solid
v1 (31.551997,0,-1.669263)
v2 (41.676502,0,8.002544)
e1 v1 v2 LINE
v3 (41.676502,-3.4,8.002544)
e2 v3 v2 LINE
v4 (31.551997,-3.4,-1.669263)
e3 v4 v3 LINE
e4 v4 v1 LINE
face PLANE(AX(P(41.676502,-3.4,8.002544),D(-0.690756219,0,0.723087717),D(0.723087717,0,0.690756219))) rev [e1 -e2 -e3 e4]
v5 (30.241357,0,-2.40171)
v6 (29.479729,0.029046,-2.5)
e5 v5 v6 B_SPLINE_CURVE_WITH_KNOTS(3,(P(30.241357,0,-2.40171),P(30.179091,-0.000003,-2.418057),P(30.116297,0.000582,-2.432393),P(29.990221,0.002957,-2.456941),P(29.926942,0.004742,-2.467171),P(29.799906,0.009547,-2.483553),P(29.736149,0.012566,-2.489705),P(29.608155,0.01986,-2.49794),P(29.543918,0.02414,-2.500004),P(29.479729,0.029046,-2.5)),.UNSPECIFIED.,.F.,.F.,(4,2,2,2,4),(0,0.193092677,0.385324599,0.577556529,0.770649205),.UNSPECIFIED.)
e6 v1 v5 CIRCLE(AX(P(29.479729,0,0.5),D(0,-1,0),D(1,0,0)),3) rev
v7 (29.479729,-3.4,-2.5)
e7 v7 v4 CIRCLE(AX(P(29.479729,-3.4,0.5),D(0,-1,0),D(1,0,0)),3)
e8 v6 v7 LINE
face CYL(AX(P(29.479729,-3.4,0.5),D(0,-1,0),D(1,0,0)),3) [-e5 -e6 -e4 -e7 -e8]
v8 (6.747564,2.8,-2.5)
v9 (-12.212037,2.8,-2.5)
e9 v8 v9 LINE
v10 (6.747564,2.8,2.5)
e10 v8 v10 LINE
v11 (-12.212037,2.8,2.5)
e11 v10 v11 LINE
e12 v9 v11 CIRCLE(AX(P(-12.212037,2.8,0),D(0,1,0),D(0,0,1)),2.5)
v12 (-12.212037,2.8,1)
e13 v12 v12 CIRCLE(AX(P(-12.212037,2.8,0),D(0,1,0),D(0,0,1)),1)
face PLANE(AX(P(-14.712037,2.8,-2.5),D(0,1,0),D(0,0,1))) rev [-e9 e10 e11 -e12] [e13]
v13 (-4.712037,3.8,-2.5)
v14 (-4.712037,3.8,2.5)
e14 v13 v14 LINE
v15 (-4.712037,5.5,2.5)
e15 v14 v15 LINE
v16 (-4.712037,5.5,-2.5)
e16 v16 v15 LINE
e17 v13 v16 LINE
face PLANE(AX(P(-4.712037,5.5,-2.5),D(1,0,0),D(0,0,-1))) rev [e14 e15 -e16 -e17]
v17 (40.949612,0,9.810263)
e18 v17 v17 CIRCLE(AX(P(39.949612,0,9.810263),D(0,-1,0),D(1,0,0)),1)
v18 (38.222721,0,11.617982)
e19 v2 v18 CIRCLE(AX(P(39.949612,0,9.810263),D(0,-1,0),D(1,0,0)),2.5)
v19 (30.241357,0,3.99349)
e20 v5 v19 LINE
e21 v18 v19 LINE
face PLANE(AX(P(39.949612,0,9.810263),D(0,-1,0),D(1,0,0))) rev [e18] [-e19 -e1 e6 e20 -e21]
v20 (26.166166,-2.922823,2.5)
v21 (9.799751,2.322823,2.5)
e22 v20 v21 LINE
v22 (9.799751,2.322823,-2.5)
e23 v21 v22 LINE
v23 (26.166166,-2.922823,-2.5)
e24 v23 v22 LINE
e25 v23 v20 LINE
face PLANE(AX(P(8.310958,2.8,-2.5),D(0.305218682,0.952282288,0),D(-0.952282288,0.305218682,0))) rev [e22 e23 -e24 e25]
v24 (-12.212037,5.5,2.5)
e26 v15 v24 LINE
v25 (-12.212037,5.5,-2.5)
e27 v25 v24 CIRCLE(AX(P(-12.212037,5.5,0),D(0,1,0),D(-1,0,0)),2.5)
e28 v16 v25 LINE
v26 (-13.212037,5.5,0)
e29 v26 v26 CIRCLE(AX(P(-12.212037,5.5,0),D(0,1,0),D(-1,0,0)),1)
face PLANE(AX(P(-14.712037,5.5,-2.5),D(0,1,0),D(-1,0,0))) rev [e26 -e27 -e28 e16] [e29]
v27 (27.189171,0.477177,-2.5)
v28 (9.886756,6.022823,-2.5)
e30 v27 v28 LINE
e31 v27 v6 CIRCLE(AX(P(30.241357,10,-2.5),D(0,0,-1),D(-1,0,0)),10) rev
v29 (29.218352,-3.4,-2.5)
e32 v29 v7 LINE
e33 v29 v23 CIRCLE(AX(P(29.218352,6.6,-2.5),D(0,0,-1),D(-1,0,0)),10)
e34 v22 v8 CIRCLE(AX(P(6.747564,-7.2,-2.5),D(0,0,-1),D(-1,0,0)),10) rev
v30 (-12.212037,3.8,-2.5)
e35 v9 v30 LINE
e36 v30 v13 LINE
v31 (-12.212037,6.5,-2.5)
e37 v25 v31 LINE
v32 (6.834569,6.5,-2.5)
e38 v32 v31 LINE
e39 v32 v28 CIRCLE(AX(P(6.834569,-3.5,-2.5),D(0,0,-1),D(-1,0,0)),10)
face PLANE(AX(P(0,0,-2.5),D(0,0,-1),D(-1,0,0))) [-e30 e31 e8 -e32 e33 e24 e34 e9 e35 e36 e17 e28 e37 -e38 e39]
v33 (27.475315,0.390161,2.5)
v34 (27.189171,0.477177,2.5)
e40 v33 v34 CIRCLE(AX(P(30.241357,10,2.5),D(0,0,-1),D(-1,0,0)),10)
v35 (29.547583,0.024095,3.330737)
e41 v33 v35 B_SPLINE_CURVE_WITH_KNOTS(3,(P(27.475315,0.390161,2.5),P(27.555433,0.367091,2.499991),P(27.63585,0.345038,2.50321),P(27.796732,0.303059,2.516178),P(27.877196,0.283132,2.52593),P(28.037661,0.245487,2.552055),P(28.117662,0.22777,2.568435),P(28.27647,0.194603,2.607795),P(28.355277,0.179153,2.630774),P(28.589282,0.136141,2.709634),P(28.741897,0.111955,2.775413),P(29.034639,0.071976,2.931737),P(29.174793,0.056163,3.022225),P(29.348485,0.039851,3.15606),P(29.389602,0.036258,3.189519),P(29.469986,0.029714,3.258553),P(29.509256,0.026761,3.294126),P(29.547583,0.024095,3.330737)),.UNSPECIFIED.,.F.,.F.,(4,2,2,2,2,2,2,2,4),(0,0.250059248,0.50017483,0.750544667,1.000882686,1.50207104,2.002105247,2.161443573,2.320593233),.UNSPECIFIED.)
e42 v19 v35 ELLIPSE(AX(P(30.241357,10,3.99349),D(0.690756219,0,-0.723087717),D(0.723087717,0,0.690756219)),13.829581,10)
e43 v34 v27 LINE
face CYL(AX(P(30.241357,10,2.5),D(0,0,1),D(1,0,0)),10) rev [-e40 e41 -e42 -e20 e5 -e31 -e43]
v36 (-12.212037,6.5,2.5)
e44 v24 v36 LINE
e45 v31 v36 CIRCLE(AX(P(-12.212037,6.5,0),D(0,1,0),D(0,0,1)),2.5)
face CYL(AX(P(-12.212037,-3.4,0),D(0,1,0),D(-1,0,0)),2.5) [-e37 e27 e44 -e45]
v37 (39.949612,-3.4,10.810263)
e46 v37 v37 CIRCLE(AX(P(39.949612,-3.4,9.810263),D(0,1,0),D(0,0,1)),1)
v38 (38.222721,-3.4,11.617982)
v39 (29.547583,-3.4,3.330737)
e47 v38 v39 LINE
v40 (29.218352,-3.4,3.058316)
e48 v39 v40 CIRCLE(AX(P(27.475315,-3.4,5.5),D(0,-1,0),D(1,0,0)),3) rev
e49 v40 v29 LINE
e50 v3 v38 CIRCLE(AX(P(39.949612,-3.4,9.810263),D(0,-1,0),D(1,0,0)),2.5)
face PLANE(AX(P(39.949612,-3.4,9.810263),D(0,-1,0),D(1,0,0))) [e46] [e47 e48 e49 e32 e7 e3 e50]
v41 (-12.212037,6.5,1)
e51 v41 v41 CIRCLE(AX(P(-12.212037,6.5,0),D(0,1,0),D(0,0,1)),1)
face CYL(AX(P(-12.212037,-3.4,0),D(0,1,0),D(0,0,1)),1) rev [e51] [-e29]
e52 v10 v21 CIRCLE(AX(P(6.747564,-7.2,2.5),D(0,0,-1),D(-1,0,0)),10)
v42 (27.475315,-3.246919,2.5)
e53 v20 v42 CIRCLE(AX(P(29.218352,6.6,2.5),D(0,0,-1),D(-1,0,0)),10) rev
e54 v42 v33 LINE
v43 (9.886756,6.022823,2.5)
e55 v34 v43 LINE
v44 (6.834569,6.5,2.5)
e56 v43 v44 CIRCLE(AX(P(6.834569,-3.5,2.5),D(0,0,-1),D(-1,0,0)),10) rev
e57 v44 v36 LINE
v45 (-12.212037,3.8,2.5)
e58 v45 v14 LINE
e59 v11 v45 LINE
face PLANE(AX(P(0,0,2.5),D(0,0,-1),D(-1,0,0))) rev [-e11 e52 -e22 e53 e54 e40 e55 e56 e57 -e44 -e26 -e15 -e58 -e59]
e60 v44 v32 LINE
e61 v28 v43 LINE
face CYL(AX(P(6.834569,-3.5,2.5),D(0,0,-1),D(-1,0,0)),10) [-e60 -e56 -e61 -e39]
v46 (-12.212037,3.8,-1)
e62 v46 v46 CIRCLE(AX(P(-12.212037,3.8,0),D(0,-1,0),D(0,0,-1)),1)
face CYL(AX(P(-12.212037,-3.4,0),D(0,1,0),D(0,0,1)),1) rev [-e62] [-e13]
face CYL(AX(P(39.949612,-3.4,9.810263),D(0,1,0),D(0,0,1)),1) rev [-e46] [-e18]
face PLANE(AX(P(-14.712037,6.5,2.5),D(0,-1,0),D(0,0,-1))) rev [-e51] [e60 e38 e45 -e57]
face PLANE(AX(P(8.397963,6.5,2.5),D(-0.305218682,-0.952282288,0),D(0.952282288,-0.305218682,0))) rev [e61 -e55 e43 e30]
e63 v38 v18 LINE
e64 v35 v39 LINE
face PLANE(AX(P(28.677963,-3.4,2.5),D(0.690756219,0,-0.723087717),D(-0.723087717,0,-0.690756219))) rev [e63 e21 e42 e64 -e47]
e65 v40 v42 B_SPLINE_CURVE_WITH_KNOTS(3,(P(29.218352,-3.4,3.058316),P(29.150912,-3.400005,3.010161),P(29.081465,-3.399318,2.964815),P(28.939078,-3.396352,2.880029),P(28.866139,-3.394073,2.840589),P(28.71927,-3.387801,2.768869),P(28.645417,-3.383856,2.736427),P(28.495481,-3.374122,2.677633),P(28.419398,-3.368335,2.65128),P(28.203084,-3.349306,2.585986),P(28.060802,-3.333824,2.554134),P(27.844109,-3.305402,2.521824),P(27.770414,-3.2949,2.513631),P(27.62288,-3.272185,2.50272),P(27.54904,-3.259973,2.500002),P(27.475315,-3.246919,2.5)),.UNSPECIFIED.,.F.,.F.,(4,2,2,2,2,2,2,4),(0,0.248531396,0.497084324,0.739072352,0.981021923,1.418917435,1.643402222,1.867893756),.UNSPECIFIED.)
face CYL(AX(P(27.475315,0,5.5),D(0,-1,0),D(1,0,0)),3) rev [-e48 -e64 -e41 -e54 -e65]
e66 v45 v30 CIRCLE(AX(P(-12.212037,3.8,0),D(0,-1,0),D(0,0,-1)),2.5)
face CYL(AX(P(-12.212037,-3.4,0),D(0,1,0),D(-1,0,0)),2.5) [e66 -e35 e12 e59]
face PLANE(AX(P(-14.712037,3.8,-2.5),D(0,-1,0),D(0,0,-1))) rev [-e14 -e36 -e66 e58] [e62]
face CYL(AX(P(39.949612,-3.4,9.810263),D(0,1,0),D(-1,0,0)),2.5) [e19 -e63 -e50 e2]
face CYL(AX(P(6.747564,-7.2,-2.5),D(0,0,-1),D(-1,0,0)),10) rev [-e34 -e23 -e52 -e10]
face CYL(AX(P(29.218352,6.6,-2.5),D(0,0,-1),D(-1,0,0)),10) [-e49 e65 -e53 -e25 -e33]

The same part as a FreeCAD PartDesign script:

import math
import FreeCAD as App
import Part
import Sketcher
Q = App.Units.Quantity


def edges_at(feature, points):
    """Names of the edges that pass closest to the given points."""
    edges = feature.Shape.Edges
    near = lambda p: min(range(len(edges)), key=lambda i: edges[i].distToShape(Part.Vertex(*p))[0])
    return sorted({f"Edge{near(p) + 1}" for p in points})


def add_polygon(sketch, points):
    """Adds a closed chain of lines whose ends are joined by coincident constraints."""
    first, n = sketch.GeometryCount, len(points)
    for a, b in zip(points, points[1:] + points[:1]):
        sketch.addGeometry(Part.LineSegment(App.Vector(*a, 0), App.Vector(*b, 0)), False)
    for i in range(n):
        sketch.addConstraint(Sketcher.Constraint("Coincident", first + i, 2, first + (i + 1) % n, 1))

doc = App.newDocument("Part")
body = doc.addObject("PartDesign::Body", "Body")

# Sketch on XY plane
sketch1 = body.newObject("Sketcher::SketchObject", "Sketch")
sketch1.AttachmentSupport = (doc.getObject("XY_Plane"), [""])
sketch1.MapMode = "FlatFace"
add_polygon(sketch1, [(8.397963, 6.5), (-14.712037, 6.5), (-14.712037, 0), (28.677963, 0)])  # lines 0-3
sketch1.addConstraint([
    Sketcher.Constraint("Horizontal", 0),
    Sketcher.Constraint("Vertical", 1),
    Sketcher.Constraint("Horizontal", 2),
    Sketcher.Constraint("PointOnObject", 1, 2, -1),
    Sketcher.Constraint("DistanceY", 1, 2, 1, 1, Q("6.5 mm")),
    Sketcher.Constraint("DistanceX", 0, 2, 0, 1, Q("23.11 mm")),
    Sketcher.Constraint("DistanceX", 2, 1, 2, 2, Q("43.39 mm")),
    Sketcher.Constraint("DistanceX", 0, 2, -1, 1, Q("14.712037 mm")),
])
pad1 = body.newObject("PartDesign::Pad", "Pad")
pad1.Profile = sketch1
pad1.Length = 5
pad1.Midplane = True

# Sketch on XZ plane
sketch2 = body.newObject("Sketcher::SketchObject", "Sketch001")
sketch2.AttachmentSupport = (doc.getObject("XZ_Plane"), [""])
sketch2.MapMode = "FlatFace"
sketch2.addGeometry([
    Part.LineSegment(App.Vector(-12.212037, -2.5, 0), App.Vector(30.682377, -2.5, 0)),  # 0
    Part.LineSegment(App.Vector(30.682377, -2.5, 0), App.Vector(41.676502, 8.002544, 0)),  # 1
    Part.ArcOfCircle(Part.Circle(App.Vector(39.949612, 9.810263, 0), App.Vector(0, 0, 1), 2.5), math.radians(-46.31), math.radians(133.69)),  # 2
    Part.LineSegment(App.Vector(38.222721, 11.617982, 0), App.Vector(28.677963, 2.5, 0)),  # 3
    Part.LineSegment(App.Vector(28.677963, 2.5, 0), App.Vector(-12.212037, 2.5, 0)),  # 4
    Part.ArcOfCircle(Part.Circle(App.Vector(-12.212037, 0, 0), App.Vector(0, 0, 1), 2.5), math.radians(90), math.radians(270)),  # 5
], False)
sketch2.addConstraint([
    Sketcher.Constraint("Coincident", 0, 2, 1, 1),
    Sketcher.Constraint("Tangent", 1, 2, 2, 1),
    Sketcher.Constraint("Tangent", 2, 2, 3, 1),
    Sketcher.Constraint("Coincident", 3, 2, 4, 1),
    Sketcher.Constraint("Tangent", 4, 2, 5, 1),
    Sketcher.Constraint("Tangent", 5, 2, 0, 1),
    Sketcher.Constraint("Horizontal", 0),
    Sketcher.Constraint("Horizontal", 4),
    Sketcher.Constraint("Equal", 2, 5),
    Sketcher.Constraint("PointOnObject", 5, 3, -1),
    Sketcher.Constraint("Parallel", 1, 3),
    Sketcher.Constraint("Radius", 2, Q("2.5 mm")),
    Sketcher.Constraint("Distance", 3, Q("13.2 mm")),
    Sketcher.Constraint("DistanceX", 4, 2, 4, 1, Q("40.89 mm")),
    Sketcher.Constraint("Angle", 1, Q("43.69 deg")),
    Sketcher.Constraint("DistanceX", -1, 1, 2, 3, Q("39.949612 mm")),
])
pad2 = body.newObject("PartDesign::Pad", "Pad001")
pad2.Profile = sketch2
pad2.Length = 3.4

# Sketch on XZ plane
sketch3 = body.newObject("Sketcher::SketchObject", "Sketch002")
sketch3.AttachmentSupport = (doc.getObject("XZ_Plane"), [""])
sketch3.MapMode = "FlatFace"
sketch3.AttachmentOffset = App.Placement(App.Vector(0, 0, -6.5), App.Rotation())
sketch3.addGeometry([
    Part.ArcOfCircle(Part.Circle(App.Vector(-12.212037, 0, 0), App.Vector(0, 0, 1), 2.5), math.radians(180), math.radians(270)),  # 0
    Part.LineSegment(App.Vector(-12.212037, -2.5, 0), App.Vector(-14.712037, -2.5, 0)),  # 1
    Part.LineSegment(App.Vector(-14.712037, -2.5, 0), App.Vector(-14.712037, 0, 0)),  # 2
    Part.ArcOfCircle(Part.Circle(App.Vector(-12.212037, 0, 0), App.Vector(0, 0, 1), 2.5), math.radians(90), math.radians(180)),  # 3
    Part.LineSegment(App.Vector(-14.712037, 0, 0), App.Vector(-14.712037, 2.5, 0)),  # 4
    Part.LineSegment(App.Vector(-14.712037, 2.5, 0), App.Vector(-12.212037, 2.5, 0)),  # 5
], False)
sketch3.addConstraint([
    Sketcher.Constraint("Tangent", 0, 2, 1, 1),
    Sketcher.Constraint("Coincident", 1, 2, 2, 1),
    Sketcher.Constraint("Tangent", 2, 2, 0, 1),
    Sketcher.Constraint("Tangent", 3, 2, 4, 1),
    Sketcher.Constraint("Coincident", 4, 2, 5, 1),
    Sketcher.Constraint("Tangent", 5, 2, 3, 1),
    Sketcher.Constraint("Horizontal", 1),
    Sketcher.Constraint("Vertical", 2),
    Sketcher.Constraint("Vertical", 4),
    Sketcher.Constraint("Horizontal", 5),
    Sketcher.Constraint("Coincident", 3, 3, 0, 3),
    Sketcher.Constraint("Equal", 0, 3),
    Sketcher.Constraint("PointOnObject", 0, 3, -1),
    Sketcher.Constraint("Radius", 0, Q("2.5 mm")),
    Sketcher.Constraint("DistanceX", 0, 3, -1, 1, Q("12.212037 mm")),
])
pocket1 = body.newObject("PartDesign::Pocket", "Pocket")
pocket1.Profile = sketch3
pocket1.Type = "ThroughAll"
pocket1.Midplane = True

# Sketch on XY plane
sketch4 = body.newObject("Sketcher::SketchObject", "Sketch003")
sketch4.AttachmentSupport = (doc.getObject("XY_Plane"), [""])
sketch4.MapMode = "FlatFace"
sketch4.AttachmentOffset = App.Placement(App.Vector(0, 0, 2.5), App.Rotation())
add_polygon(sketch4, [(8.310958, 2.8), (-14.712037, 2.8), (-14.712037, -3.4), (27.654958, -3.4)])  # lines 0-3
sketch4.addConstraint([
    Sketcher.Constraint("Horizontal", 0),
    Sketcher.Constraint("Vertical", 1),
    Sketcher.Constraint("Horizontal", 2),
    Sketcher.Constraint("DistanceY", 1, 2, 1, 1, Q("6.2 mm")),
    Sketcher.Constraint("DistanceY", -1, 1, 0, 2, Q("2.8 mm")),
    Sketcher.Constraint("DistanceX", 3, 2, 2, 2, Q("19.344 mm")),
    Sketcher.Constraint("DistanceX", 0, 2, 0, 1, Q("23.022995 mm")),
    Sketcher.Constraint("DistanceX", -1, 1, 2, 2, Q("27.654958 mm")),
])
pocket2 = body.newObject("PartDesign::Pocket", "Pocket001")
pocket2.Profile = sketch4
pocket2.Type = "ThroughAll"
pocket2.Midplane = True

# Sketch on XY plane
sketch5 = body.newObject("Sketcher::SketchObject", "Sketch004")
sketch5.AttachmentSupport = (doc.getObject("XY_Plane"), [""])
sketch5.MapMode = "FlatFace"
sketch5.AttachmentOffset = App.Placement(App.Vector(0, 0, 2.5), App.Rotation())
add_polygon(sketch5, [(-14.712037, 5.5), (-14.712037, 3.8), (-4.712037, 3.8), (-4.712037, 5.5)])  # lines 0-3
sketch5.addConstraint([
    Sketcher.Constraint("Vertical", 0),
    Sketcher.Constraint("Horizontal", 1),
    Sketcher.Constraint("Vertical", 2),
    Sketcher.Constraint("Horizontal", 3),
    Sketcher.Constraint("DistanceX", 1, 1, 1, 2, Q("10 mm")),
    Sketcher.Constraint("DistanceY", 0, 2, 0, 1, Q("1.7 mm")),
    Sketcher.Constraint("DistanceY", -1, 1, 0, 2, Q("3.8 mm")),
    Sketcher.Constraint("DistanceX", 0, 2, -1, 1, Q("14.712037 mm")),
])
pocket3 = body.newObject("PartDesign::Pocket", "Pocket002")
pocket3.Profile = sketch5
pocket3.Type = "ThroughAll"
pocket3.Midplane = True

# Sketch on XZ plane
sketch6 = body.newObject("Sketcher::SketchObject", "Sketch005")
sketch6.AttachmentSupport = (doc.getObject("XZ_Plane"), [""])
sketch6.MapMode = "FlatFace"
sketch6.AttachmentOffset = App.Placement(App.Vector(0, 0, -6.5), App.Rotation())
sketch6.addGeometry([
    Part.Circle(App.Vector(-12.212037, 0, 0), App.Vector(0, 0, 1), 1),
    Part.Circle(App.Vector(39.949612, 9.810263, 0), App.Vector(0, 0, 1), 1),
], False)
sketch6.addConstraint([
    Sketcher.Constraint("Equal", 0, 1),
    Sketcher.Constraint("PointOnObject", 0, 3, -1),
    Sketcher.Constraint("Diameter", 0, Q("2 mm")),
    Sketcher.Constraint("DistanceX", -1, 1, 1, 3, Q("39.949612 mm")),
    Sketcher.Constraint("DistanceX", 0, 3, 1, 3, Q("52.161648 mm")),
    Sketcher.Constraint("DistanceY", -1, 1, 1, 3, Q("9.810263 mm")),
])
pocket4 = body.newObject("PartDesign::Pocket", "Pocket003")
pocket4.Profile = sketch6
pocket4.Type = "ThroughAll"
pocket4.Midplane = True
doc.recompute()

fillet = body.newObject("PartDesign::Fillet", "Fillet")
fillet.Base = (pocket4, edges_at(pocket4, [
    (28.678, 0, 0),
    (8.398, 6.5, 0),
    (27.655, -3.4, 0),
    (8.311, 2.8, 0),
]))
fillet.Radius = 10
doc.recompute()

fillet2 = body.newObject("PartDesign::Fillet", "Fillet001")
fillet2.Base = (fillet, edges_at(fillet, [(30.682, -1.7, -2.5), (28.678, -1.631, 2.5)]))
fillet2.Radius = 3

doc.recompute()
